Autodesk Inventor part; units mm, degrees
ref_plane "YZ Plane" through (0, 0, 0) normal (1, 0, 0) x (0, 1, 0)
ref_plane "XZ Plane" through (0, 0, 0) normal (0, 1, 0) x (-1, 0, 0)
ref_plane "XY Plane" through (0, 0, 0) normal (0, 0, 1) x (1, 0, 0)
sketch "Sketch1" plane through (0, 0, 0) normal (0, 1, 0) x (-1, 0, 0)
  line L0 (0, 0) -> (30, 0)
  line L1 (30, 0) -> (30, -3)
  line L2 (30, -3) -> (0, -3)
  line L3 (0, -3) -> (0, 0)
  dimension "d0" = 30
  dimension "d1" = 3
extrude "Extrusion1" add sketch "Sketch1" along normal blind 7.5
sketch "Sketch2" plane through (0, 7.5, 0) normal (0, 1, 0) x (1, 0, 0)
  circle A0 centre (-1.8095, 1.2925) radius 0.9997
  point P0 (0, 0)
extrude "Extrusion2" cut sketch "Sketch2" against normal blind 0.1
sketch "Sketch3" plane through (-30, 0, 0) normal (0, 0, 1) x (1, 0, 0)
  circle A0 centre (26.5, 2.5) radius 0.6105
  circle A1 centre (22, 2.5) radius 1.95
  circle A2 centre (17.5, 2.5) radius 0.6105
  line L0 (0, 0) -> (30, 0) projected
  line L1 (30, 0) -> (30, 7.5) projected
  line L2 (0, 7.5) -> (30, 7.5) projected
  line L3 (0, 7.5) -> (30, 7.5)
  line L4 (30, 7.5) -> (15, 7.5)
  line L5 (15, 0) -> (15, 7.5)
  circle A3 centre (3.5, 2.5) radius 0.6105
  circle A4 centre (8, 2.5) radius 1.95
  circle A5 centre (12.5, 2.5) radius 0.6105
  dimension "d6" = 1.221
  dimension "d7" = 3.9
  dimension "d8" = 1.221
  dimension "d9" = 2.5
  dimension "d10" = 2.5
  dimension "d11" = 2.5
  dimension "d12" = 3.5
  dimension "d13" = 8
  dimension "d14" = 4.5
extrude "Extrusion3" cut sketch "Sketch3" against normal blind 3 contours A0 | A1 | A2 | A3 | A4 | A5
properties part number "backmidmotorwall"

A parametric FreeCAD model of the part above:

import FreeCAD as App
import Part
import Sketcher
from FreeCAD import Vector


def add_polygon(sketch, points):
    """Adds a closed chain of lines whose ends are joined by coincident constraints."""
    first, n = sketch.GeometryCount, len(points)
    for a, b in zip(points, points[1:] + points[:1]):
        sketch.addGeometry(Part.LineSegment(App.Vector(*a, 0), App.Vector(*b, 0)), False)
    for i in range(n):
        sketch.addConstraint(Sketcher.Constraint("Coincident", first + i, 2, first + (i + 1) % n, 1))

doc = App.newDocument("Part")
params = doc.addObject("Spreadsheet::Sheet", "Params")
for row, (alias, value) in enumerate([
    ("sketch1_width", "30 mm"),
    ("sketch1_height", "3 mm"),
    ("pad1_length", "7.5 mm"),
    ("pocket1_length", "0.1 mm"),
    ("sketch3_diameter", "3.9 mm"),
    ("pocket2_length", "3 mm"),
], start=1):
    params.set(f"A{row}", alias)
    params.set(f"B{row}", "=" + value)
    params.setAlias(f"B{row}", alias)

body = doc.addObject("PartDesign::Body", "Body")

# Sketch on XZ plane
sketch1 = body.newObject("Sketcher::SketchObject", "Sketch")
sketch1.AttachmentSupport = (doc.getObject("XZ_Plane"), [""])
sketch1.MapMode = "FlatFace"
add_polygon(sketch1, [(-30, 0), (0, 0), (0, -3), (-30, -3)])  # lines 0-3
sketch1.addConstraint(Sketcher.Constraint("Horizontal", 0))
sketch1.addConstraint(Sketcher.Constraint("Vertical", 1))
sketch1.addConstraint(Sketcher.Constraint("Horizontal", 2))
sketch1.addConstraint(Sketcher.Constraint("Vertical", 3))
sketch1.addConstraint(Sketcher.Constraint("Coincident", 0, 2, -1, 1))
sketch1.addConstraint(Sketcher.Constraint("DistanceX", 0, 1, 0, 2, 30.0))
sketch1.addConstraint(Sketcher.Constraint("DistanceY", 1, 2, 1, 1, 3.0))
sketch1.setExpression("Constraints[9]", "Params.sketch1_width")
sketch1.setExpression("Constraints[10]", "Params.sketch1_height")
pad1 = body.newObject("PartDesign::Pad", "Pad")
pad1.Profile = sketch1
pad1.setExpression("Length", "Params.pad1_length")
pad1.Reversed = True

# Sketch on XZ plane
sketch2 = body.newObject("Sketcher::SketchObject", "Sketch001")
sketch2.AttachmentSupport = (doc.getObject("XZ_Plane"), [""])
sketch2.MapMode = "FlatFace"
sketch2.AttachmentOffset = App.Placement(Vector(0, 0, -7.5), App.Rotation())
sketch2.addGeometry(Part.Circle(Vector(-1.8, -1.3, 0), Vector(0, 0, 1), 1), False)
sketch2.addConstraint(Sketcher.Constraint("Diameter", 0, 1.9994))
sketch2.addConstraint(Sketcher.Constraint("DistanceX", 0, 3, -1, 1, 1.8095))
sketch2.addConstraint(Sketcher.Constraint("DistanceY", 0, 3, -1, 1, 1.2925))
pocket1 = body.newObject("PartDesign::Pocket", "Pocket")
pocket1.Profile = sketch2
pocket1.setExpression("Length", "Params.pocket1_length")
pocket1.Reversed = True

# Sketch on XY plane
sketch3 = body.newObject("Sketcher::SketchObject", "Sketch002")
sketch3.AttachmentSupport = (doc.getObject("XY_Plane"), [""])
sketch3.MapMode = "FlatFace"
sketch3.addGeometry(Part.Circle(Vector(-3.5, 2.5, 0), Vector(0, 0, 1), 0.6), False)
sketch3.addGeometry(Part.Circle(Vector(-8, 2.5, 0), Vector(0, 0, 1), 1.9), False)
sketch3.addGeometry(Part.Circle(Vector(-12.5, 2.5, 0), Vector(0, 0, 1), 0.6), False)
sketch3.addGeometry(Part.Circle(Vector(-26.5, 2.5, 0), Vector(0, 0, 1), 0.6), False)
sketch3.addGeometry(Part.Circle(Vector(-22, 2.5, 0), Vector(0, 0, 1), 1.9), False)
sketch3.addGeometry(Part.Circle(Vector(-17.5, 2.5, 0), Vector(0, 0, 1), 0.6), False)
sketch3.addConstraint(Sketcher.Constraint("Equal", 0, 2))
sketch3.addConstraint(Sketcher.Constraint("Equal", 2, 3))
sketch3.addConstraint(Sketcher.Constraint("Equal", 1, 4))
sketch3.addConstraint(Sketcher.Constraint("Equal", 3, 5))
sketch3.addConstraint(Sketcher.Constraint("Horizontal", 0, 3, 1, 3))
sketch3.addConstraint(Sketcher.Constraint("Horizontal", 1, 3, 2, 3))
sketch3.addConstraint(Sketcher.Constraint("Horizontal", 2, 3, 3, 3))
sketch3.addConstraint(Sketcher.Constraint("Horizontal", 3, 3, 4, 3))
sketch3.addConstraint(Sketcher.Constraint("Horizontal", 4, 3, 5, 3))
sketch3.addConstraint(Sketcher.Constraint("Diameter", 1, 3.9))
sketch3.addConstraint(Sketcher.Constraint("Diameter", 0, 1.221))
sketch3.addConstraint(Sketcher.Constraint("DistanceX", 1, 3, -1, 1, 8.0))
sketch3.addConstraint(Sketcher.Constraint("DistanceX", 0, 3, -1, 1, 3.5))
sketch3.addConstraint(Sketcher.Constraint("DistanceY", -1, 1, 0, 3, 2.5))
sketch3.addConstraint(Sketcher.Constraint("DistanceX", 2, 3, 1, 3, 4.5))
sketch3.addConstraint(Sketcher.Constraint("DistanceX", 3, 3, 4, 3, 4.5))
sketch3.addConstraint(Sketcher.Constraint("DistanceX", 4, 3, 5, 3, 4.5))
sketch3.addConstraint(Sketcher.Constraint("DistanceX", 4, 3, -1, 1, 22.0))
sketch3.setExpression("Constraints[9]", "Params.sketch3_diameter")
pocket2 = body.newObject("PartDesign::Pocket", "Pocket001")
pocket2.Profile = sketch3
pocket2.setExpression("Length", "Params.pocket2_length")

doc.recompute()
